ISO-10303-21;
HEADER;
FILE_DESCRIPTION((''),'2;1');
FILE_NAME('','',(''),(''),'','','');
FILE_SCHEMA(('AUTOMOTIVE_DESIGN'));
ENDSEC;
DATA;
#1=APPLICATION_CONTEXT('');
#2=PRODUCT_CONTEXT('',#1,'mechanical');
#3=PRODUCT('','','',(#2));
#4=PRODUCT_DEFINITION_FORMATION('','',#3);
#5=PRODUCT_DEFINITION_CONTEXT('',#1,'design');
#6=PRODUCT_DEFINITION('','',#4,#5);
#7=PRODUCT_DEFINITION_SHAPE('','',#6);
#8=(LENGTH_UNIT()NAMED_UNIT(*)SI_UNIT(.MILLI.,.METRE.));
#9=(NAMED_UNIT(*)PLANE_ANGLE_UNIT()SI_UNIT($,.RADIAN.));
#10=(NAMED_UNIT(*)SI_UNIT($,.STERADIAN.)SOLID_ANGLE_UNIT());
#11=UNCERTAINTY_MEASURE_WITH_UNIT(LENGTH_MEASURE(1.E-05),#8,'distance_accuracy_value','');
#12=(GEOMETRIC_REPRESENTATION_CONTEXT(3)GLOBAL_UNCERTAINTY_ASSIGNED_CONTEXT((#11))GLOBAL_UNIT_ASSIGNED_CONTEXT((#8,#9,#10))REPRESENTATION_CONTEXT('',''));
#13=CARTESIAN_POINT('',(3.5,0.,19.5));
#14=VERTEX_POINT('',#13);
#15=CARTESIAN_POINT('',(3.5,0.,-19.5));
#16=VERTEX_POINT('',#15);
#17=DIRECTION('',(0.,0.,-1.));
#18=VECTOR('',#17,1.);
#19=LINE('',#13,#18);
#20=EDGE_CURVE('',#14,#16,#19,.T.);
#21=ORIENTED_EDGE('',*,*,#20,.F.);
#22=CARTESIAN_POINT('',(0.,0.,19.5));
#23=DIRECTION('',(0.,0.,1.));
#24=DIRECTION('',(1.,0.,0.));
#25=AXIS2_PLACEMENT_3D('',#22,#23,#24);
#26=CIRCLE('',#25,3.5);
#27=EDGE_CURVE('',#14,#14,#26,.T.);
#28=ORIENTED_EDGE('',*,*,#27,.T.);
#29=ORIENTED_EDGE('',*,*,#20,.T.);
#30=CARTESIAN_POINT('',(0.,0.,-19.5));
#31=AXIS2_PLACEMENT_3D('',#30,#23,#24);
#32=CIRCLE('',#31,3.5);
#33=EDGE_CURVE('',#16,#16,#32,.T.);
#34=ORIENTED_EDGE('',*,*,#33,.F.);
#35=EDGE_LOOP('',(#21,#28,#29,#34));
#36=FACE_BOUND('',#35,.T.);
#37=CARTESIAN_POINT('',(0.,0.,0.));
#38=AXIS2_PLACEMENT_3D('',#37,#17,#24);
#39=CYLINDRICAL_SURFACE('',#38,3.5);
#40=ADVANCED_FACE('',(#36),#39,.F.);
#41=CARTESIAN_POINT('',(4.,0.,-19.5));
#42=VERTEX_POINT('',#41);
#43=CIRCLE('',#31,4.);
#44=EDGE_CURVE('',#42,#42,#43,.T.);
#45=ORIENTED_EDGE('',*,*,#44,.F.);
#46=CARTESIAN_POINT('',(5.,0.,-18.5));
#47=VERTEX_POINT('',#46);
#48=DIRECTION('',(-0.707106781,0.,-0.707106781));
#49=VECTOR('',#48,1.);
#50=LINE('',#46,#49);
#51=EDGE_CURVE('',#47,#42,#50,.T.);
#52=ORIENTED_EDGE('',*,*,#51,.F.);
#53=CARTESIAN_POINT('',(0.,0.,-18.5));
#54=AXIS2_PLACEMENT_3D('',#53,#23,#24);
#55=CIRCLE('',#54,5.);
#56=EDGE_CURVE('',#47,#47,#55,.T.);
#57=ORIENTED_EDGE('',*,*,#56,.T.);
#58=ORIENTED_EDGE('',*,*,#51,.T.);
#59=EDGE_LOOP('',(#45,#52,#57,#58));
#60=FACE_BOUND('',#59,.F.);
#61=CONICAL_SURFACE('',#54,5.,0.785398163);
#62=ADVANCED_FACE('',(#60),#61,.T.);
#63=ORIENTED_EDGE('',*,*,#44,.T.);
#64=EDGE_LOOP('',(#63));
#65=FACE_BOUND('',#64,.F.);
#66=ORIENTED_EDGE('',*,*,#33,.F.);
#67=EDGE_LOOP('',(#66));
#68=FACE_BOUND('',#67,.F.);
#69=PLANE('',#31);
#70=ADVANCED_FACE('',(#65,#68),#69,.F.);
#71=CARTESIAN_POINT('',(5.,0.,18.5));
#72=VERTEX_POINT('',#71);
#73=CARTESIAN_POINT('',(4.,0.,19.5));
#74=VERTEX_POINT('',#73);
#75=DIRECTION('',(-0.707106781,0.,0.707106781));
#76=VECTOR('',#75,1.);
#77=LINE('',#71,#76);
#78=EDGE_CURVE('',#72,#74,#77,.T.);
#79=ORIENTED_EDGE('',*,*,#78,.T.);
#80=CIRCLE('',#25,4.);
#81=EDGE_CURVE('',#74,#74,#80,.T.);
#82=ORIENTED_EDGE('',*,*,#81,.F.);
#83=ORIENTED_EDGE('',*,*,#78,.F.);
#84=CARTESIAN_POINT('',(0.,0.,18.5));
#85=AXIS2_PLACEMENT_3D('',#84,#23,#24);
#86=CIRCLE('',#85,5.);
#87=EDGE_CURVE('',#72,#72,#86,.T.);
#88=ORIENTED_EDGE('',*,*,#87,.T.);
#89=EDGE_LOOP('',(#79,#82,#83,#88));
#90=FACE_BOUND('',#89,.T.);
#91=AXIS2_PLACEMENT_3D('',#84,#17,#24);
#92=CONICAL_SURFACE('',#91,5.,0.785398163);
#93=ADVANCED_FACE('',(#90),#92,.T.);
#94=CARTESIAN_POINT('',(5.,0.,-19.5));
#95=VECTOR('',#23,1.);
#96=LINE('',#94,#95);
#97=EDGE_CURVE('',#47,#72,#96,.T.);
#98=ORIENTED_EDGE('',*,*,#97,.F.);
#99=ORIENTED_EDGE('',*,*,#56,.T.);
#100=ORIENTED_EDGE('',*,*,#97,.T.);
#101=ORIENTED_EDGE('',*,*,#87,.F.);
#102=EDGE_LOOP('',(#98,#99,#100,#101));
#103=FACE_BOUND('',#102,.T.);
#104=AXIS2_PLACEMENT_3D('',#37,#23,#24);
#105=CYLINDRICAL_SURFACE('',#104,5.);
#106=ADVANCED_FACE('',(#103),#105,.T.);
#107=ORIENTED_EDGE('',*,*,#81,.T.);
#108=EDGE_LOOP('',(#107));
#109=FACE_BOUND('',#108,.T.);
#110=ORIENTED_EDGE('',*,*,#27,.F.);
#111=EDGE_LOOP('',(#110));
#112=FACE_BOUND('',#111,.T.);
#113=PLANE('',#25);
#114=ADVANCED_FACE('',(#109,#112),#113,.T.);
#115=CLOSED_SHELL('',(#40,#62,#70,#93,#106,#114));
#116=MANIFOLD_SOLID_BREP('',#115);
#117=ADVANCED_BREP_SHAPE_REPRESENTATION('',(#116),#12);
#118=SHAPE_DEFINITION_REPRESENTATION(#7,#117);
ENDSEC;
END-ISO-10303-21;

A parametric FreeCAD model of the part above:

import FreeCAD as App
import Part
import Sketcher
Q = App.Units.Quantity


def edges_at(feature, points):
    """Names of the edges that pass closest to the given points."""
    edges = feature.Shape.Edges
    near = lambda p: min(range(len(edges)), key=lambda i: edges[i].distToShape(Part.Vertex(*p))[0])
    return sorted({f"Edge{near(p) + 1}" for p in points})

doc = App.newDocument("Part")
body = doc.addObject("PartDesign::Body", "Body")

sketch1 = body.newObject("Sketcher::SketchObject", "Sketch")
sketch1.AttachmentSupport = (doc.getObject("XY_Plane"), [""])
sketch1.MapMode = "FlatFace"
sketch1.addGeometry(Part.Circle(App.Vector(0, 0, 0), App.Vector(0, 0, 1), 5), False)
sketch1.addGeometry(Part.Circle(App.Vector(0, 0, 0), App.Vector(0, 0, 1), 3.5), False)
sketch1.addConstraint(Sketcher.Constraint("Coincident", 0, 3, -1, 1))
sketch1.addConstraint(Sketcher.Constraint("Coincident", 1, 3, -1, 1))
sketch1.addConstraint(Sketcher.Constraint("Diameter", 0, Q("10 mm")))
sketch1.addConstraint(Sketcher.Constraint("Diameter", 1, Q("7 mm")))
pad1 = body.newObject("PartDesign::Pad", "Pad")
pad1.Profile = sketch1
pad1.Length = 39
pad1.Midplane = True
doc.recompute()

chamfer = body.newObject("PartDesign::Chamfer", "Chamfer")
chamfer.Base = (pad1, edges_at(pad1, [(-5, 0, 19.5), (-5, 0, -19.5)]))
chamfer.ChamferType = "Two distances"
chamfer.Size = 1
chamfer.Size2 = 1

doc.recompute()
